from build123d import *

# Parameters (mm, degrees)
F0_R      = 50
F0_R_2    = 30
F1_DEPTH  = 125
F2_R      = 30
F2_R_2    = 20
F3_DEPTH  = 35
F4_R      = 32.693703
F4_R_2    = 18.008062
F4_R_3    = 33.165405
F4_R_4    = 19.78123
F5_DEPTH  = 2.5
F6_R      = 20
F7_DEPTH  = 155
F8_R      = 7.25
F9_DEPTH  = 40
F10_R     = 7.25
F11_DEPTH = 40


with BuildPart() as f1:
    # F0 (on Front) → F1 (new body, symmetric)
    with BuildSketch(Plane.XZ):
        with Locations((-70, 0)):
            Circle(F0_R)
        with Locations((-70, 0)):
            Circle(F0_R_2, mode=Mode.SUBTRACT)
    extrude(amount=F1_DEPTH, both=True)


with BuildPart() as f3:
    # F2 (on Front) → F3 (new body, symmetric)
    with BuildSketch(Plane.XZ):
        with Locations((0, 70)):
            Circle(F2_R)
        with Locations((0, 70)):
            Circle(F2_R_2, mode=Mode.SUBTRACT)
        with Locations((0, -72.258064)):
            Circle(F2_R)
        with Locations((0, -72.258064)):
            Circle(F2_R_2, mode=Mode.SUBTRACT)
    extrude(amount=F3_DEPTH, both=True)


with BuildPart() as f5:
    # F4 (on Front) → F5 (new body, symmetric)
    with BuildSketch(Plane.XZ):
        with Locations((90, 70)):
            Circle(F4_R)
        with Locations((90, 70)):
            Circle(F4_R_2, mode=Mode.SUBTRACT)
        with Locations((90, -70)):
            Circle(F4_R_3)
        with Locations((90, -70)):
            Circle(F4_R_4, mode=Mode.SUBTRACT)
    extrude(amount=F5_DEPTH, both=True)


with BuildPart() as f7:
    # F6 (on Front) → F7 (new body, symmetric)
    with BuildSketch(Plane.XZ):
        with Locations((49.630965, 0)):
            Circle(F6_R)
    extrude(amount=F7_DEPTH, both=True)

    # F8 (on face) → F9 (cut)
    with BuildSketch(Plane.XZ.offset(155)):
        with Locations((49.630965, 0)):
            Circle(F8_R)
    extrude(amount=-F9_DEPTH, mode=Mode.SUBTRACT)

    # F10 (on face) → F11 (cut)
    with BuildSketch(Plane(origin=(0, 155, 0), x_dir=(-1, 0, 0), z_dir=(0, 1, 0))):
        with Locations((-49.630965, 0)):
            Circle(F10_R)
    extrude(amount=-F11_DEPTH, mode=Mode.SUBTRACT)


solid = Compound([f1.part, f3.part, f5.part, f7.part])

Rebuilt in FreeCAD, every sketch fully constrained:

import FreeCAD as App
import Part
import Sketcher

V = App.Vector

doc = App.newDocument("Part")
body = doc.addObject("PartDesign::Body", "Body")

# Sketch on XZ plane
sketch1 = body.newObject("Sketcher::SketchObject", "Sketch")
sketch1.AttachmentSupport = (doc.getObject("XZ_Plane"), [""])
sketch1.MapMode = "FlatFace"
sketch1.addGeometry([
    Part.Circle(V(-70, 0, 0), V(0, 0, 1), 50),
    Part.Circle(V(-70, 0, 0), V(0, 0, 1), 30),
], False)
sketch1.addConstraint([
    Sketcher.Constraint("Coincident", 1, 3, 0, 3),
    Sketcher.Constraint("PointOnObject", 0, 3, -1),
    Sketcher.Constraint("Diameter", 0, 100.0),
    Sketcher.Constraint("Diameter", 1, 60.0),
    Sketcher.Constraint("DistanceX", 0, 3, -1, 1, 70.0),
])
pad1 = body.newObject("PartDesign::Pad", "Pad")
pad1.Profile = sketch1
pad1.Length = 250
pad1.Midplane = True
body2 = doc.addObject("PartDesign::Body", "Body001")
body2.AllowCompound = True

# Sketch on XZ plane
sketch2 = body2.newObject("Sketcher::SketchObject", "Sketch001")
sketch2.AttachmentSupport = (doc.getObject("XZ_Plane001"), [""])
sketch2.MapMode = "FlatFace"
sketch2.addGeometry([
    Part.Circle(V(0, 70, 0), V(0, 0, 1), 30),
    Part.Circle(V(0, 70, 0), V(0, 0, 1), 20),
    Part.Circle(V(0, -72, 0), V(0, 0, 1), 30),
    Part.Circle(V(0, -72, 0), V(0, 0, 1), 20),
], False)
sketch2.addConstraint([
    Sketcher.Constraint("Coincident", 1, 3, 0, 3),
    Sketcher.Constraint("Coincident", 3, 3, 2, 3),
    Sketcher.Constraint("Equal", 0, 2),
    Sketcher.Constraint("Equal", 1, 3),
    Sketcher.Constraint("PointOnObject", 0, 3, -2),
    Sketcher.Constraint("PointOnObject", 2, 3, -2),
    Sketcher.Constraint("Diameter", 0, 60.0),
    Sketcher.Constraint("Diameter", 1, 40.0),
    Sketcher.Constraint("DistanceY", -1, 1, 0, 3, 70.0),
    Sketcher.Constraint("DistanceY", 2, 3, -1, 1, 72.258064),
])
pad2 = body2.newObject("PartDesign::Pad", "Pad001")
pad2.Profile = sketch2
pad2.Length = 70
pad2.Midplane = True
body3 = doc.addObject("PartDesign::Body", "Body002")
body3.AllowCompound = True

# Sketch on XZ plane
sketch3 = body3.newObject("Sketcher::SketchObject", "Sketch002")
sketch3.AttachmentSupport = (doc.getObject("XZ_Plane002"), [""])
sketch3.MapMode = "FlatFace"
sketch3.addGeometry([
    Part.Circle(V(90, 70, 0), V(0, 0, 1), 33),
    Part.Circle(V(90, 70, 0), V(0, 0, 1), 18),
    Part.Circle(V(90, -70, 0), V(0, 0, 1), 33),
    Part.Circle(V(90, -70, 0), V(0, 0, 1), 20),
], False)
sketch3.addConstraint([
    Sketcher.Constraint("Coincident", 1, 3, 0, 3),
    Sketcher.Constraint("Coincident", 3, 3, 2, 3),
    Sketcher.Constraint("Symmetric", 0, 3, 2, 3, -1),
    Sketcher.Constraint("DistanceX", -1, 1, 0, 3, 90.0),
    Sketcher.Constraint("DistanceY", -1, 1, 0, 3, 70.0),
    Sketcher.Constraint("Diameter", 2, 66.33081),
    Sketcher.Constraint("Diameter", 3, 39.56246),
    Sketcher.Constraint("Diameter", 0, 65.387406),
    Sketcher.Constraint("Diameter", 1, 36.016124),
])
pad3 = body3.newObject("PartDesign::Pad", "Pad002")
pad3.Profile = sketch3
pad3.Length = 5
pad3.Midplane = True
body4 = doc.addObject("PartDesign::Body", "Body003")

# Sketch on XZ plane
sketch4 = body4.newObject("Sketcher::SketchObject", "Sketch003")
sketch4.AttachmentSupport = (doc.getObject("XZ_Plane003"), [""])
sketch4.MapMode = "FlatFace"
sketch4.addGeometry(Part.Circle(V(50, 0, 0), V(0, 0, 1), 20), False)
sketch4.addConstraint([
    Sketcher.Constraint("PointOnObject", 0, 3, -1),
    Sketcher.Constraint("Diameter", 0, 40.0),
    Sketcher.Constraint("DistanceX", -1, 1, 0, 3, 49.630965),
])
pad4 = body4.newObject("PartDesign::Pad", "Pad003")
pad4.Profile = sketch4
pad4.Length = 310
pad4.Midplane = True

# Sketch on XZ plane
sketch5 = body4.newObject("Sketcher::SketchObject", "Sketch004")
sketch5.AttachmentSupport = (doc.getObject("XZ_Plane003"), [""])
sketch5.MapMode = "FlatFace"
sketch5.AttachmentOffset = App.Placement(V(0, 0, 155), App.Rotation())
sketch5.addGeometry(Part.Circle(V(50, 0, 0), V(0, 0, 1), 7), False)
sketch5.addConstraint([
    Sketcher.Constraint("PointOnObject", 0, 3, -1),
    Sketcher.Constraint("Diameter", 0, 14.5),
    Sketcher.Constraint("DistanceX", -1, 1, 0, 3, 49.630965),
])
pocket1 = body4.newObject("PartDesign::Pocket", "Pocket")
pocket1.Profile = sketch5
pocket1.Length = 40

# Sketch on XZ plane
sketch6 = body4.newObject("Sketcher::SketchObject", "Sketch005")
sketch6.AttachmentSupport = (doc.getObject("XZ_Plane003"), [""])
sketch6.MapMode = "FlatFace"
sketch6.AttachmentOffset = App.Placement(V(0, 0, -155), App.Rotation())
sketch6.addGeometry(Part.Circle(V(50, 0, 0), V(0, 0, 1), 7), False)
sketch6.addConstraint([
    Sketcher.Constraint("PointOnObject", 0, 3, -1),
    Sketcher.Constraint("Diameter", 0, 14.5),
    Sketcher.Constraint("DistanceX", -1, 1, 0, 3, 49.630965),
])
pocket2 = body4.newObject("PartDesign::Pocket", "Pocket001")
pocket2.Profile = sketch6
pocket2.Length = 40
pocket2.Reversed = True

doc.recompute()
